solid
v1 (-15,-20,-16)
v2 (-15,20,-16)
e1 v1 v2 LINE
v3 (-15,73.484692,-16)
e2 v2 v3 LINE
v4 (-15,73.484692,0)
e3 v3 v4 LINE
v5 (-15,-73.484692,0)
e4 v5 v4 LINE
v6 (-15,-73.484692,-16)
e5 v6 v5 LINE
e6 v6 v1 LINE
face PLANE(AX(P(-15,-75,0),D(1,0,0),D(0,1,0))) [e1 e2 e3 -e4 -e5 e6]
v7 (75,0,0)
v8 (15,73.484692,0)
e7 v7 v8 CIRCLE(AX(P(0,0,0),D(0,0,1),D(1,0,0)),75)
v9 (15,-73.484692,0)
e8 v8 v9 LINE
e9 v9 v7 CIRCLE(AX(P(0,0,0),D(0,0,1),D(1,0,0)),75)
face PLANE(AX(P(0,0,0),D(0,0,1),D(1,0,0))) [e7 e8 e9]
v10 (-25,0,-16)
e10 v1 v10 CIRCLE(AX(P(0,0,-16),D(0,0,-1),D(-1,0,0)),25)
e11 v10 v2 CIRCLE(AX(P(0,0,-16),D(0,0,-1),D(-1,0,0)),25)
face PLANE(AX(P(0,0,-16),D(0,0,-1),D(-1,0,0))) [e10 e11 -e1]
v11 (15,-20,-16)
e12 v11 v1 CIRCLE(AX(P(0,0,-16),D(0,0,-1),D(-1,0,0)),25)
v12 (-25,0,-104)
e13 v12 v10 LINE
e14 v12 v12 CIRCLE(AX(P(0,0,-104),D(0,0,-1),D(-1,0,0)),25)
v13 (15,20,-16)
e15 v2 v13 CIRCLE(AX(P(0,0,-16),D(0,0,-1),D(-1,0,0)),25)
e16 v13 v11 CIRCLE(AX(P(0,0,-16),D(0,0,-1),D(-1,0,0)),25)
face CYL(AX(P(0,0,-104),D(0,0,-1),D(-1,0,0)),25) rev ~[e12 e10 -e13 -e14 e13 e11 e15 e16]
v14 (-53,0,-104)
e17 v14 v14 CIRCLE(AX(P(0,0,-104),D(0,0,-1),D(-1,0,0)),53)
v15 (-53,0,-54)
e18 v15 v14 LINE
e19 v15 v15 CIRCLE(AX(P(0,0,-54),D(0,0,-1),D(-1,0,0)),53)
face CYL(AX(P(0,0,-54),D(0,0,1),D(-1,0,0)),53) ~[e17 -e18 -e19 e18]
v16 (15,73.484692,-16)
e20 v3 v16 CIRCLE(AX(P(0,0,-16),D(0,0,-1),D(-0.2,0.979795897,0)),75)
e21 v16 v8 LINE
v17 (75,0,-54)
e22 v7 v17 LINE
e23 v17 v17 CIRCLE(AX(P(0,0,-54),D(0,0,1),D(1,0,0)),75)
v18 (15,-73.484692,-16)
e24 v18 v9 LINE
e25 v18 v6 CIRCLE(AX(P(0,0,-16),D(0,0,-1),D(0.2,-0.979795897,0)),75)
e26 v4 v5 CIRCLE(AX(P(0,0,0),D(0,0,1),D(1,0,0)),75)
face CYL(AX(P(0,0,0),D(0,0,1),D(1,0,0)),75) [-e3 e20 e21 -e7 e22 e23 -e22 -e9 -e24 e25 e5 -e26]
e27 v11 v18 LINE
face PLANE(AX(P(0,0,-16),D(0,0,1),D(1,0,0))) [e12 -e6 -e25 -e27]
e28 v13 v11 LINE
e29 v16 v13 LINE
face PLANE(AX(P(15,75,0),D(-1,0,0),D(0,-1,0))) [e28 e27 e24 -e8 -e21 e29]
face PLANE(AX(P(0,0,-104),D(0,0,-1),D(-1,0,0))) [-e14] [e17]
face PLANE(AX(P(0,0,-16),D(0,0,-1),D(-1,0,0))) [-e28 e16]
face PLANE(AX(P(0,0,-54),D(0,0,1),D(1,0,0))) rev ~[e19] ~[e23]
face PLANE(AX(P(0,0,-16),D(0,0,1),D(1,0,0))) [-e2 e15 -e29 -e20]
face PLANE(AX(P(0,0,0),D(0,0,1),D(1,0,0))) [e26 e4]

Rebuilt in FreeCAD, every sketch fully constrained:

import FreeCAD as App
import Part
import Sketcher

V = App.Vector

doc = App.newDocument("Part")
params = doc.addObject("Spreadsheet::Sheet", "Params")
for row, (alias, value) in enumerate([
    ("sketch1_diameter", "150 mm"),
    ("pad1_length", "54 mm"),
    ("sketch2_width", "30 mm"),
    ("pocket1_length", "16 mm"),
    ("sketch3_diameter", "106 mm"),
    ("pad2_length", "50 mm"),
    ("sketch4_diameter", "50 mm"),
    ("pocket2_length", "88 mm"),
], start=1):
    params.set(f"A{row}", alias)
    params.set(f"B{row}", "=" + value)
    params.setAlias(f"B{row}", alias)

body = doc.addObject("PartDesign::Body", "Body")

sketch1 = doc.addObject("Sketcher::SketchObject", "Sketch")
body.addObject(sketch1)
sketch1.AttachmentSupport = (doc.XY_Plane, [""])
sketch1.MapMode = "FlatFace"
sketch1.addGeometry(Part.Circle(V(0, 0, 0), V(0, 0, 1), 75), False)
sketch1.addConstraint([
    Sketcher.Constraint("Coincident", 0, 3, -1, 1),
    Sketcher.Constraint("Diameter", 0, 150.0),
])
sketch1.setExpression("Constraints[1]", "Params.sketch1_diameter")
pad1 = doc.addObject("PartDesign::Pad", "Pad")
body.addObject(pad1)
pad1.Profile = sketch1
pad1.setExpression("Length", "Params.pad1_length")
pad1.Reversed = True

sketch2 = doc.addObject("Sketcher::SketchObject", "Sketch001")
body.addObject(sketch2)
sketch2.AttachmentSupport = (doc.XY_Plane, [""])
sketch2.MapMode = "FlatFace"
sketch2.addGeometry([
    Part.LineSegment(V(15, 75, 0), V(-15, 75, 0)),
    Part.LineSegment(V(-15, 75, 0), V(-15, -75, 0)),
    Part.LineSegment(V(-15, -75, 0), V(15, -75, 0)),
    Part.LineSegment(V(15, -75, 0), V(15, 75, 0)),
], False)
sketch2.addConstraint([
    Sketcher.Constraint("Coincident", 0, 2, 1, 1),
    Sketcher.Constraint("Coincident", 1, 2, 2, 1),
    Sketcher.Constraint("Coincident", 2, 2, 3, 1),
    Sketcher.Constraint("Coincident", 3, 2, 0, 1),
    Sketcher.Constraint("Horizontal", 0),
    Sketcher.Constraint("Vertical", 1),
    Sketcher.Constraint("Horizontal", 2),
    Sketcher.Constraint("Vertical", 3),
    Sketcher.Constraint("Symmetric", 0, 2, 2, 2, -1, 1),
    Sketcher.Constraint("DistanceX", 0, 2, 0, 1, 30.0),
    Sketcher.Constraint("DistanceY", -1, 1, 0, 2, 75.0),
])
sketch2.setExpression("Constraints[9]", "Params.sketch2_width")
pocket1 = doc.addObject("PartDesign::Pocket", "Pocket")
body.addObject(pocket1)
pocket1.Profile = sketch2
pocket1.setExpression("Length", "Params.pocket1_length")

sketch3 = doc.addObject("Sketcher::SketchObject", "Sketch002")
body.addObject(sketch3)
sketch3.AttachmentSupport = (doc.XY_Plane, [""])
sketch3.MapMode = "FlatFace"
sketch3.AttachmentOffset = App.Placement(V(0, 0, -54), App.Rotation())
sketch3.addGeometry(Part.Circle(V(0, 0, 0), V(0, 0, 1), 53), False)
sketch3.addConstraint([
    Sketcher.Constraint("Coincident", 0, 3, -1, 1),
    Sketcher.Constraint("Diameter", 0, 106.0),
])
sketch3.setExpression("Constraints[1]", "Params.sketch3_diameter")
pad2 = doc.addObject("PartDesign::Pad", "Pad001")
body.addObject(pad2)
pad2.Profile = sketch3
pad2.setExpression("Length", "Params.pad2_length")
pad2.Reversed = True

sketch4 = doc.addObject("Sketcher::SketchObject", "Sketch003")
body.addObject(sketch4)
sketch4.AttachmentSupport = (doc.XY_Plane, [""])
sketch4.MapMode = "FlatFace"
sketch4.AttachmentOffset = App.Placement(V(0, 0, -104), App.Rotation())
sketch4.addGeometry(Part.Circle(V(0, 0, 0), V(0, 0, 1), 25), False)
sketch4.addConstraint([
    Sketcher.Constraint("Coincident", 0, 3, -1, 1),
    Sketcher.Constraint("Diameter", 0, 50.0),
])
sketch4.setExpression("Constraints[1]", "Params.sketch4_diameter")
pocket2 = doc.addObject("PartDesign::Pocket", "Pocket001")
body.addObject(pocket2)
pocket2.Profile = sketch4
pocket2.setExpression("Length", "Params.pocket2_length")
pocket2.Reversed = True

doc.recompute()
